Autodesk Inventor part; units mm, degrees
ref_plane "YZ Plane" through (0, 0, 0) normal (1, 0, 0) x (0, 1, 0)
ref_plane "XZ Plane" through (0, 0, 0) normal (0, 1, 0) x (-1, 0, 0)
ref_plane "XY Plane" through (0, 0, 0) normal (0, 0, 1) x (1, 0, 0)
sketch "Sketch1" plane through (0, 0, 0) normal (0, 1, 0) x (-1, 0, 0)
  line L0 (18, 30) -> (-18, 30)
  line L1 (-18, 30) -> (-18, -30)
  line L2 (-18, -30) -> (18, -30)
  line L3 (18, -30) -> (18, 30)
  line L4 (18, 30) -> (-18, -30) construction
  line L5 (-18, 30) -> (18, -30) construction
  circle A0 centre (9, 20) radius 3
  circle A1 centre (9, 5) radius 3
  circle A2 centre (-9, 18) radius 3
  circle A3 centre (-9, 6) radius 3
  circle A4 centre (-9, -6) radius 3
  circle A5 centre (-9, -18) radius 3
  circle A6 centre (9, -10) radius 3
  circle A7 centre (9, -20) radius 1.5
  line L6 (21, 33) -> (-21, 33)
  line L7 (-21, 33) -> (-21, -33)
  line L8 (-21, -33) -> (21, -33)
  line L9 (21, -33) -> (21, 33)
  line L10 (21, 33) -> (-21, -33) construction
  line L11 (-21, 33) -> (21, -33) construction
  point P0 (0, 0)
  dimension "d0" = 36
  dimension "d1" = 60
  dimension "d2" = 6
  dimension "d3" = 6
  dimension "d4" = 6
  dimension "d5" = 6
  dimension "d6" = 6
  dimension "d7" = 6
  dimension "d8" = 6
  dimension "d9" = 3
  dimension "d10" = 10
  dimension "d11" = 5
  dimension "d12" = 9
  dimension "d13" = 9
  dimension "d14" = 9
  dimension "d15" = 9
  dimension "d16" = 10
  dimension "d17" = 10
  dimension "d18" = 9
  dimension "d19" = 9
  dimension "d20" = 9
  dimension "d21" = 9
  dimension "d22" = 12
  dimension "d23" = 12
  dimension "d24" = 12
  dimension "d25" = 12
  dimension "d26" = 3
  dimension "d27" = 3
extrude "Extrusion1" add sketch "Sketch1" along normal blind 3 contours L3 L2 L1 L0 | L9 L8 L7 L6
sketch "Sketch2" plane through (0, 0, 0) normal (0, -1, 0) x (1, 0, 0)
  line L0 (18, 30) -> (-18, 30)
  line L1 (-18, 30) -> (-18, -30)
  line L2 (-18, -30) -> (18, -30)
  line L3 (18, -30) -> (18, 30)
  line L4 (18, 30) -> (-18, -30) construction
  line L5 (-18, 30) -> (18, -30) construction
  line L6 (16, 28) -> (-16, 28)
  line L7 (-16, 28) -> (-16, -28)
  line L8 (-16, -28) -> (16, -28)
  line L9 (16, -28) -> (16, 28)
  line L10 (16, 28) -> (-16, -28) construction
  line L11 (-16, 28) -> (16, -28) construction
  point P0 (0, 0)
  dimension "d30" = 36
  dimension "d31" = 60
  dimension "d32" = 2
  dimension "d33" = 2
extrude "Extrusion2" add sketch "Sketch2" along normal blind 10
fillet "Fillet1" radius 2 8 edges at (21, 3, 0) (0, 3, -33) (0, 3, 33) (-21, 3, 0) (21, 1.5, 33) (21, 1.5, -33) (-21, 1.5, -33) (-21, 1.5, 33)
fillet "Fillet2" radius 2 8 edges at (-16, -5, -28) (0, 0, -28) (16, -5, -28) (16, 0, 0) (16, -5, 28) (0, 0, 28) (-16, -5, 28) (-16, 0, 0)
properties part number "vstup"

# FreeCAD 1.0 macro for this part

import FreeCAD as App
import Part
import Sketcher
from FreeCAD import Vector
Q = App.Units.Quantity


def edges_at(feature, points):
    """Names of the edges that pass closest to the given points."""
    edges = feature.Shape.Edges
    near = lambda p: min(range(len(edges)), key=lambda i: edges[i].distToShape(Part.Vertex(*p))[0])
    return sorted({f"Edge{near(p) + 1}" for p in points})


def add_polygon(sketch, points):
    """Adds a closed chain of lines whose ends are joined by coincident constraints."""
    first, n = sketch.GeometryCount, len(points)
    for a, b in zip(points, points[1:] + points[:1]):
        sketch.addGeometry(Part.LineSegment(App.Vector(*a, 0), App.Vector(*b, 0)), False)
    for i in range(n):
        sketch.addConstraint(Sketcher.Constraint("Coincident", first + i, 2, first + (i + 1) % n, 1))

doc = App.newDocument("Part")
body = doc.addObject("PartDesign::Body", "Body")

# Sketch on XZ plane
sketch1 = doc.addObject("Sketcher::SketchObject", "Sketch")
body.addObject(sketch1)
sketch1.AttachmentSupport = (doc.XZ_Plane, [""])
sketch1.MapMode = "FlatFace"
add_polygon(sketch1, [(-21, -33), (-21, 33), (21, 33), (21, -33)])  # lines 0-3
sketch1.addGeometry(Part.Circle(Vector(9, -18, 0), Vector(0, 0, 1), 3), False)  # 4
sketch1.addGeometry(Part.Circle(Vector(9, -6, 0), Vector(0, 0, 1), 3), False)  # 5
sketch1.addGeometry(Part.Circle(Vector(-9, -20, 0), Vector(0, 0, 1), 1.5), False)  # 6
sketch1.addGeometry(Part.Circle(Vector(-9, -10, 0), Vector(0, 0, 1), 3), False)  # 7
sketch1.addGeometry(Part.Circle(Vector(9, 6, 0), Vector(0, 0, 1), 3), False)  # 8
sketch1.addGeometry(Part.Circle(Vector(9, 18, 0), Vector(0, 0, 1), 3), False)  # 9
sketch1.addGeometry(Part.Circle(Vector(-9, 5, 0), Vector(0, 0, 1), 3), False)  # 10
sketch1.addGeometry(Part.Circle(Vector(-9, 20, 0), Vector(0, 0, 1), 3), False)  # 11
sketch1.addConstraint([
    Sketcher.Constraint("Vertical", 0),
    Sketcher.Constraint("Horizontal", 1),
    Sketcher.Constraint("Vertical", 2),
    Sketcher.Constraint("Horizontal", 3),
    Sketcher.Constraint("Equal", 4, 5),
    Sketcher.Constraint("Equal", 5, 7),
    Sketcher.Constraint("Equal", 7, 8),
    Sketcher.Constraint("Equal", 8, 9),
    Sketcher.Constraint("Equal", 9, 10),
    Sketcher.Constraint("Equal", 10, 11),
    Sketcher.Constraint("Symmetric", 0, 2, 2, 2, -1, 1),
    Sketcher.Constraint("Symmetric", 5, 3, 8, 3, -1),
    Sketcher.Constraint("Symmetric", 4, 3, 9, 3, -1),
    Sketcher.Constraint("Symmetric", 6, 3, 11, 3, -1),
    Sketcher.Constraint("Vertical", 4, 3, 5, 3),
    Sketcher.Constraint("Vertical", 6, 3, 7, 3),
    Sketcher.Constraint("Vertical", 7, 3, 10, 3),
    Sketcher.Constraint("Diameter", 4, Q("6 mm")),
    Sketcher.Constraint("Diameter", 6, Q("3 mm")),
    Sketcher.Constraint("DistanceX", -1, 1, 4, 3, Q("9 mm")),
    Sketcher.Constraint("DistanceY", 5, 3, -1, 1, Q("6 mm")),
    Sketcher.Constraint("DistanceX", 6, 3, -1, 1, Q("9 mm")),
    Sketcher.Constraint("DistanceY", 7, 3, -1, 1, Q("10 mm")),
    Sketcher.Constraint("DistanceY", -1, 1, 10, 3, Q("5 mm")),
    Sketcher.Constraint("DistanceY", 4, 3, 5, 3, Q("12 mm")),
    Sketcher.Constraint("DistanceY", 6, 3, 7, 3, Q("10 mm")),
    Sketcher.Constraint("DistanceX", 0, 2, 11, 3, Q("12 mm")),
    Sketcher.Constraint("DistanceY", 0, 1, 0, 2, Q("66 mm")),
])
pad1 = doc.addObject("PartDesign::Pad", "Pad")
body.addObject(pad1)
pad1.Profile = sketch1
pad1.Length = 3
pad1.Reversed = True

# Sketch on XZ plane
sketch2 = doc.addObject("Sketcher::SketchObject", "Sketch001")
body.addObject(sketch2)
sketch2.AttachmentSupport = (doc.XZ_Plane, [""])
sketch2.MapMode = "FlatFace"
add_polygon(sketch2, [(18, -30), (18, 30), (-18, 30), (-18, -30)])  # lines 0-3
add_polygon(sketch2, [(-16, 28), (16, 28), (16, -28), (-16, -28)])  # lines 4-7
sketch2.addConstraint([
    Sketcher.Constraint("Vertical", 0),
    Sketcher.Constraint("Horizontal", 1),
    Sketcher.Constraint("Vertical", 2),
    Sketcher.Constraint("Horizontal", 3),
    Sketcher.Constraint("Horizontal", 4),
    Sketcher.Constraint("Vertical", 5),
    Sketcher.Constraint("Horizontal", 6),
    Sketcher.Constraint("Vertical", 7),
    Sketcher.Constraint("Symmetric", 0, 2, 2, 2, -1, 1),
    Sketcher.Constraint("Symmetric", 4, 2, 6, 2, -1, 1),
    Sketcher.Constraint("DistanceX", 1, 2, 1, 1, Q("36 mm")),
    Sketcher.Constraint("DistanceY", 0, 1, 0, 2, Q("60 mm")),
    Sketcher.Constraint("DistanceX", 4, 2, 0, 2, Q("2 mm")),
    Sketcher.Constraint("DistanceY", 4, 2, 0, 2, Q("2 mm")),
])
pad2 = doc.addObject("PartDesign::Pad", "Pad001")
body.addObject(pad2)
pad2.Profile = sketch2
pad2.Length = 10
doc.recompute()

fillet = doc.addObject("PartDesign::Fillet", "Fillet")
body.addObject(fillet)
fillet.Base = (pad2, edges_at(pad2, [
    (21, 3, 0),
    (0, 3, -33),
    (0, 3, 33),
    (-21, 3, 0),
    (21, 1.5, 33),
    (21, 1.5, -33),
    (-21, 1.5, -33),
    (-21, 1.5, 33),
]))
fillet.Radius = 2
doc.recompute()

fillet2 = doc.addObject("PartDesign::Fillet", "Fillet001")
body.addObject(fillet2)
fillet2.Base = (fillet, edges_at(fillet, [
    (-16, -5, -28),
    (0, 0, -28),
    (16, -5, -28),
    (16, 0, 0),
    (16, -5, 28),
    (0, 0, 28),
    (-16, -5, 28),
    (-16, 0, 0),
]))
fillet2.Radius = 2

doc.recompute()
